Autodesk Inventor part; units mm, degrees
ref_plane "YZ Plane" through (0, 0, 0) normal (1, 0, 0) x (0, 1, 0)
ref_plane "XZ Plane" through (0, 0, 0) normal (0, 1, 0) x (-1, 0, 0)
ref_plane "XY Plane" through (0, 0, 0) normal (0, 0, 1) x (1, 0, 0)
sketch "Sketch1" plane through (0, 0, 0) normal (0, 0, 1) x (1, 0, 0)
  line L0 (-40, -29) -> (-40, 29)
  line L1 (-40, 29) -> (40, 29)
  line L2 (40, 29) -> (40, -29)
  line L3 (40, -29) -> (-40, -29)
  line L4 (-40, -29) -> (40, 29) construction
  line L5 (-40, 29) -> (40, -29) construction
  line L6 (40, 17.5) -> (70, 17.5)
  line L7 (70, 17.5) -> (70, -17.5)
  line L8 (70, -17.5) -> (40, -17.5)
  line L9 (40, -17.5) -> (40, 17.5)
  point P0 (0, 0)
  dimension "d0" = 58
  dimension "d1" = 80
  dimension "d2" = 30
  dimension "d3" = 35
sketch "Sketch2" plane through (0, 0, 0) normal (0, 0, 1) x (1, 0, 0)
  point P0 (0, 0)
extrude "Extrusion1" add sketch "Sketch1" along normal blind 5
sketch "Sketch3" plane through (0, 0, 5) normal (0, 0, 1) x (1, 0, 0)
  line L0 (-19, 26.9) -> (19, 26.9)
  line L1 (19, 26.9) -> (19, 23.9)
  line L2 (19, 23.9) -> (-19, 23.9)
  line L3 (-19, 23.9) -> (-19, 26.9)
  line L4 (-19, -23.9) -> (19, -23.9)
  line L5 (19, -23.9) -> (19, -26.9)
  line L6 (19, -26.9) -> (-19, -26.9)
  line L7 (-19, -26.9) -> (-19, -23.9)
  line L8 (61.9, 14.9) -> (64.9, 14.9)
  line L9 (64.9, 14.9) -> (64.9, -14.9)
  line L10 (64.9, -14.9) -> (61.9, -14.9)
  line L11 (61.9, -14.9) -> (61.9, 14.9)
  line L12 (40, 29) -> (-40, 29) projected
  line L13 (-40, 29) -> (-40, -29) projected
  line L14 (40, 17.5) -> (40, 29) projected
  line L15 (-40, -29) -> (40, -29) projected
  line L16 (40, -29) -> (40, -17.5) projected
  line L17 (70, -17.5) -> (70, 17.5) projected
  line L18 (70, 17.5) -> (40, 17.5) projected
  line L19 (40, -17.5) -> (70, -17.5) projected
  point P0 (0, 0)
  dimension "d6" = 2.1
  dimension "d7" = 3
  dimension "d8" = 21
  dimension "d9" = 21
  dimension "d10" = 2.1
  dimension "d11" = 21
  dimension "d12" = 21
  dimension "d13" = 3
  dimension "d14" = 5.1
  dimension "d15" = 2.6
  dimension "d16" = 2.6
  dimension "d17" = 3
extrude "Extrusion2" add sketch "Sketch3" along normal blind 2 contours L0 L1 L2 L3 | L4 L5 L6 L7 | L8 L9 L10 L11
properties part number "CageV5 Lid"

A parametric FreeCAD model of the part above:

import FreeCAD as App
import Part
import Sketcher

V = App.Vector
Q = App.Units.Quantity

doc = App.newDocument("Part")
params = doc.addObject("Spreadsheet::Sheet", "Params")
for row, (alias, value) in enumerate([
    ("sketch1_width", "80 mm"),
    ("sketch1_width2", "30 mm"),
    ("sketch1_height", "58 mm"),
    ("sketch1_height2", "35 mm"),
    ("pad1_length", "5 mm"),
    ("sketch2_width", "3 mm"),
    ("sketch2_width2", "38 mm"),
    ("sketch2_height", "29.8 mm"),
    ("pad2_length", "2 mm"),
], start=1):
    params.set(f"A{row}", alias)
    params.set(f"B{row}", "=" + value)
    params.setAlias(f"B{row}", alias)

body = doc.addObject("PartDesign::Body", "Body")

sketch1 = body.newObject("Sketcher::SketchObject", "Sketch")
sketch1.AttachmentSupport = (doc.getObject("XY_Plane"), [""])
sketch1.MapMode = "FlatFace"
sketch1.addGeometry(Part.LineSegment(V(-40, 29, 0), V(-40, -29, 0)), False)
sketch1.addGeometry(Part.LineSegment(V(-40, -29, 0), V(40, -29, 0)), False)
sketch1.addGeometry(Part.LineSegment(V(40, -29, 0), V(40, -17.5, 0)), False)
sketch1.addGeometry(Part.LineSegment(V(40, -17.5, 0), V(70, -17.5, 0)), False)
sketch1.addGeometry(Part.LineSegment(V(70, -17.5, 0), V(70, 17.5, 0)), False)
sketch1.addGeometry(Part.LineSegment(V(70, 17.5, 0), V(40, 17.5, 0)), False)
sketch1.addGeometry(Part.LineSegment(V(40, 17.5, 0), V(40, 29, 0)), False)
sketch1.addGeometry(Part.LineSegment(V(40, 29, 0), V(-40, 29, 0)), False)
sketch1.addConstraint(Sketcher.Constraint("Coincident", 0, 2, 1, 1))
sketch1.addConstraint(Sketcher.Constraint("Coincident", 1, 2, 2, 1))
sketch1.addConstraint(Sketcher.Constraint("Coincident", 2, 2, 3, 1))
sketch1.addConstraint(Sketcher.Constraint("Coincident", 3, 2, 4, 1))
sketch1.addConstraint(Sketcher.Constraint("Coincident", 4, 2, 5, 1))
sketch1.addConstraint(Sketcher.Constraint("Coincident", 5, 2, 6, 1))
sketch1.addConstraint(Sketcher.Constraint("Coincident", 6, 2, 7, 1))
sketch1.addConstraint(Sketcher.Constraint("Coincident", 7, 2, 0, 1))
sketch1.addConstraint(Sketcher.Constraint("Vertical", 0))
sketch1.addConstraint(Sketcher.Constraint("Horizontal", 1))
sketch1.addConstraint(Sketcher.Constraint("Vertical", 2))
sketch1.addConstraint(Sketcher.Constraint("Horizontal", 3))
sketch1.addConstraint(Sketcher.Constraint("Vertical", 4))
sketch1.addConstraint(Sketcher.Constraint("Horizontal", 5))
sketch1.addConstraint(Sketcher.Constraint("Vertical", 6))
sketch1.addConstraint(Sketcher.Constraint("Horizontal", 7))
sketch1.addConstraint(Sketcher.Constraint("Symmetric", 0, 2, 6, 2, -1, 1))
sketch1.addConstraint(Sketcher.Constraint("Symmetric", 2, 2, 5, 2, -1))
sketch1.addConstraint(Sketcher.Constraint("DistanceX", 1, 1, 1, 2, Q("80 mm")))
sketch1.addConstraint(Sketcher.Constraint("DistanceX", 3, 1, 3, 2, Q("30 mm")))
sketch1.addConstraint(Sketcher.Constraint("DistanceY", 0, 2, 0, 1, Q("58 mm")))
sketch1.addConstraint(Sketcher.Constraint("DistanceY", 4, 1, 4, 2, Q("35 mm")))
sketch1.setExpression("Constraints[18]", "Params.sketch1_width")
sketch1.setExpression("Constraints[19]", "Params.sketch1_width2")
sketch1.setExpression("Constraints[20]", "Params.sketch1_height")
sketch1.setExpression("Constraints[21]", "Params.sketch1_height2")
pad1 = body.newObject("PartDesign::Pad", "Pad")
pad1.Profile = sketch1
pad1.setExpression("Length", "Params.pad1_length")

sketch2 = body.newObject("Sketcher::SketchObject", "Sketch001")
sketch2.AttachmentSupport = (doc.getObject("XY_Plane"), [""])
sketch2.MapMode = "FlatFace"
sketch2.AttachmentOffset = App.Placement(V(0, 0, 5), App.Rotation())
sketch2.addGeometry(Part.LineSegment(V(19, 26.9, 0), V(-19, 26.9, 0)), False)
sketch2.addGeometry(Part.LineSegment(V(-19, 26.9, 0), V(-19, 23.9, 0)), False)
sketch2.addGeometry(Part.LineSegment(V(-19, 23.9, 0), V(19, 23.9, 0)), False)
sketch2.addGeometry(Part.LineSegment(V(19, 23.9, 0), V(19, 26.9, 0)), False)
sketch2.addGeometry(Part.LineSegment(V(19, -23.9, 0), V(-19, -23.9, 0)), False)
sketch2.addGeometry(Part.LineSegment(V(-19, -23.9, 0), V(-19, -26.9, 0)), False)
sketch2.addGeometry(Part.LineSegment(V(-19, -26.9, 0), V(19, -26.9, 0)), False)
sketch2.addGeometry(Part.LineSegment(V(19, -26.9, 0), V(19, -23.9, 0)), False)
sketch2.addGeometry(Part.LineSegment(V(64.9, 14.9, 0), V(61.9, 14.9, 0)), False)
sketch2.addGeometry(Part.LineSegment(V(61.9, 14.9, 0), V(61.9, -14.9, 0)), False)
sketch2.addGeometry(Part.LineSegment(V(61.9, -14.9, 0), V(64.9, -14.9, 0)), False)
sketch2.addGeometry(Part.LineSegment(V(64.9, -14.9, 0), V(64.9, 14.9, 0)), False)
sketch2.addConstraint(Sketcher.Constraint("Coincident", 0, 2, 1, 1))
sketch2.addConstraint(Sketcher.Constraint("Coincident", 1, 2, 2, 1))
sketch2.addConstraint(Sketcher.Constraint("Coincident", 2, 2, 3, 1))
sketch2.addConstraint(Sketcher.Constraint("Coincident", 3, 2, 0, 1))
sketch2.addConstraint(Sketcher.Constraint("Coincident", 4, 2, 5, 1))
sketch2.addConstraint(Sketcher.Constraint("Coincident", 5, 2, 6, 1))
sketch2.addConstraint(Sketcher.Constraint("Coincident", 6, 2, 7, 1))
sketch2.addConstraint(Sketcher.Constraint("Coincident", 7, 2, 4, 1))
sketch2.addConstraint(Sketcher.Constraint("Coincident", 8, 2, 9, 1))
sketch2.addConstraint(Sketcher.Constraint("Coincident", 9, 2, 10, 1))
sketch2.addConstraint(Sketcher.Constraint("Coincident", 10, 2, 11, 1))
sketch2.addConstraint(Sketcher.Constraint("Coincident", 11, 2, 8, 1))
sketch2.addConstraint(Sketcher.Constraint("Horizontal", 0))
sketch2.addConstraint(Sketcher.Constraint("Vertical", 1))
sketch2.addConstraint(Sketcher.Constraint("Horizontal", 2))
sketch2.addConstraint(Sketcher.Constraint("Vertical", 3))
sketch2.addConstraint(Sketcher.Constraint("Horizontal", 4))
sketch2.addConstraint(Sketcher.Constraint("Vertical", 5))
sketch2.addConstraint(Sketcher.Constraint("Horizontal", 6))
sketch2.addConstraint(Sketcher.Constraint("Vertical", 7))
sketch2.addConstraint(Sketcher.Constraint("Horizontal", 8))
sketch2.addConstraint(Sketcher.Constraint("Vertical", 9))
sketch2.addConstraint(Sketcher.Constraint("Horizontal", 10))
sketch2.addConstraint(Sketcher.Constraint("Vertical", 11))
sketch2.addConstraint(Sketcher.Constraint("Symmetric", 2, 2, 4, 2, -1, 1))
sketch2.addConstraint(Sketcher.Constraint("Symmetric", 0, 2, 6, 2, -1, 1))
sketch2.addConstraint(Sketcher.Constraint("Vertical", 1, 2, 4, 2))
sketch2.addConstraint(Sketcher.Constraint("Equal", 10, 1))
sketch2.addConstraint(Sketcher.Constraint("DistanceX", 8, 2, 8, 1, Q("3 mm")))
sketch2.addConstraint(Sketcher.Constraint("DistanceX", 0, 2, 0, 1, Q("38 mm")))
sketch2.addConstraint(Sketcher.Constraint("DistanceY", 9, 2, 9, 1, Q("29.8 mm")))
sketch2.addConstraint(Sketcher.Constraint("DistanceY", 8, 2, 2, 2, Q("9 mm")))
sketch2.addConstraint(Sketcher.Constraint("DistanceY", 7, 2, 9, 2, Q("9 mm")))
sketch2.addConstraint(Sketcher.Constraint("DistanceX", -1, 1, 8, 2, Q("61.9 mm")))
sketch2.setExpression("Constraints[28]", "Params.sketch2_width")
sketch2.setExpression("Constraints[29]", "Params.sketch2_width2")
sketch2.setExpression("Constraints[30]", "Params.sketch2_height")
pad2 = body.newObject("PartDesign::Pad", "Pad001")
pad2.Profile = sketch2
pad2.setExpression("Length", "Params.pad2_length")

doc.recompute()
